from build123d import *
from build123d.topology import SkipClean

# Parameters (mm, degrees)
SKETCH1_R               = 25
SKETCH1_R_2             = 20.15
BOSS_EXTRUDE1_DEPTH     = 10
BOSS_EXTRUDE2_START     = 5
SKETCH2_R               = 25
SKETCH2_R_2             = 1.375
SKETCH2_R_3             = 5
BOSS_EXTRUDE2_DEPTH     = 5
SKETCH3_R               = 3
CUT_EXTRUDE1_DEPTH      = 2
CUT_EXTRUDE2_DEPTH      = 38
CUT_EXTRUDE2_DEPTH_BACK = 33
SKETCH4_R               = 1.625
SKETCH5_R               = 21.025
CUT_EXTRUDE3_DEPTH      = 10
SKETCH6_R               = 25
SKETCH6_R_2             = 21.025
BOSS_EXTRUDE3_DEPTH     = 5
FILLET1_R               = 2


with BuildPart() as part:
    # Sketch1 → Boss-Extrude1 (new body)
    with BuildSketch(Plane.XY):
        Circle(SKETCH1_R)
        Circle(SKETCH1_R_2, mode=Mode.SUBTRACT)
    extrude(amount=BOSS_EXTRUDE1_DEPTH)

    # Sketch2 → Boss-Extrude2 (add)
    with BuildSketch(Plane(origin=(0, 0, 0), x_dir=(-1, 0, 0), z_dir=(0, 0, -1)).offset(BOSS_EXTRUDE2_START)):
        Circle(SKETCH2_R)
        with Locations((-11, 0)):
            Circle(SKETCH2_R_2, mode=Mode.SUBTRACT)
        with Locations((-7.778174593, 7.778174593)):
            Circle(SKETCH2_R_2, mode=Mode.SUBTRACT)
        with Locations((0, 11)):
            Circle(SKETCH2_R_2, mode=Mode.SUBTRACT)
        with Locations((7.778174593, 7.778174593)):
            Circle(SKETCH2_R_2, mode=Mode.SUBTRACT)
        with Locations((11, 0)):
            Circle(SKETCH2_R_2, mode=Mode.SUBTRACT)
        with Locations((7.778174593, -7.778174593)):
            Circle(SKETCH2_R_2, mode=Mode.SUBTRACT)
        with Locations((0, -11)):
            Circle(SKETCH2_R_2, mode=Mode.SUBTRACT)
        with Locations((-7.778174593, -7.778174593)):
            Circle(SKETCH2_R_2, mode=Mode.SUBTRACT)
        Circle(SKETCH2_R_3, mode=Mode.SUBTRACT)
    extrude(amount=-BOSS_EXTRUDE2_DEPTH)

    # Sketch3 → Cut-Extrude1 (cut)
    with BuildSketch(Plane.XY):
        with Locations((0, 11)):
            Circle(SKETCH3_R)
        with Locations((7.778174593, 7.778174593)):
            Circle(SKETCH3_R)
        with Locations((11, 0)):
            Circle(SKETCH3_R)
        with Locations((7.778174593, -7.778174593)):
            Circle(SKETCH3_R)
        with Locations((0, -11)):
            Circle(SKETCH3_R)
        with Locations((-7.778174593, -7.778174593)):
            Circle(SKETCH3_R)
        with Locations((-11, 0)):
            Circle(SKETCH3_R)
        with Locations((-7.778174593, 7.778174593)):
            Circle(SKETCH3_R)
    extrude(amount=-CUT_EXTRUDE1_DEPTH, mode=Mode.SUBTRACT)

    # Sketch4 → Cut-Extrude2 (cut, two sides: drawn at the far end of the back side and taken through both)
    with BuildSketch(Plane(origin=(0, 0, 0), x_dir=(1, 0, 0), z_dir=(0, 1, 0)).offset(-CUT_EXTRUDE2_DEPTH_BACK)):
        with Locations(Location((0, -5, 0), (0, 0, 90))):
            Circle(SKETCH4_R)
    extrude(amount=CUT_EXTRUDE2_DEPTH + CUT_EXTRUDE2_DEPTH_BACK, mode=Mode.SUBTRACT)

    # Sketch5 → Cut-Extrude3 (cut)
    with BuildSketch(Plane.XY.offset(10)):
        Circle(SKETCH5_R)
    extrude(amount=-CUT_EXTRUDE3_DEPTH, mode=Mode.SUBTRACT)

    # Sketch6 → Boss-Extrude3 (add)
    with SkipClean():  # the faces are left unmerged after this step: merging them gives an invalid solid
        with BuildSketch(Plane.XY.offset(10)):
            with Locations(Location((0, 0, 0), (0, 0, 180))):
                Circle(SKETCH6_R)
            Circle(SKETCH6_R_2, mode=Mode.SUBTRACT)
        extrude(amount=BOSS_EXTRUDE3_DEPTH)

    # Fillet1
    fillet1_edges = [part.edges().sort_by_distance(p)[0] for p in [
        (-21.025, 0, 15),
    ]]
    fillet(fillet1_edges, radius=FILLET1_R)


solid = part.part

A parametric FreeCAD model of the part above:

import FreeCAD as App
import Part
import Sketcher
from FreeCAD import Vector


def edges_at(feature, points):
    """Names of the edges that pass closest to the given points."""
    edges = feature.Shape.Edges
    near = lambda p: min(range(len(edges)), key=lambda i: edges[i].distToShape(Part.Vertex(*p))[0])
    return sorted({f"Edge{near(p) + 1}" for p in points})

doc = App.newDocument("Part")
body = doc.addObject("PartDesign::Body", "Body")

# Sketch on XY plane
sketch1 = doc.addObject("Sketcher::SketchObject", "Sketch")
body.addObject(sketch1)
sketch1.AttachmentSupport = (doc.XY_Plane, [""])
sketch1.MapMode = "FlatFace"
sketch1.addGeometry([
    Part.Circle(Vector(0, 0, 0), Vector(0, 0, 1), 25),
    Part.Circle(Vector(0, 0, 0), Vector(0, 0, 1), 20),
], False)
sketch1.addConstraint([
    Sketcher.Constraint("Coincident", 0, 3, -1, 1),
    Sketcher.Constraint("Coincident", 1, 3, -1, 1),
    Sketcher.Constraint("Diameter", 0, 50.0),
    Sketcher.Constraint("Diameter", 1, 40.3),
])
pad1 = doc.addObject("PartDesign::Pad", "Pad")
body.addObject(pad1)
pad1.Profile = sketch1
pad1.Length = 10

# Sketch on XY plane
sketch2 = doc.addObject("Sketcher::SketchObject", "Sketch001")
body.addObject(sketch2)
sketch2.AttachmentSupport = (doc.XY_Plane, [""])
sketch2.MapMode = "FlatFace"
sketch2.AttachmentOffset = App.Placement(Vector(0, 0, -5), App.Rotation())
sketch2.addGeometry([
    Part.Circle(Vector(0, 0, 0), Vector(0, 0, 1), 25),  # 0
    Part.Circle(Vector(7.8, -7.8, 0), Vector(0, 0, 1), 1.4),  # 1
    Part.Circle(Vector(0, -11, 0), Vector(0, 0, 1), 1.4),  # 2
    Part.Circle(Vector(-7.8, -7.8, 0), Vector(0, 0, 1), 1.4),  # 3
    Part.Circle(Vector(11, 0, 0), Vector(0, 0, 1), 1.4),  # 4
    Part.Circle(Vector(7.8, 7.8, 0), Vector(0, 0, 1), 1.4),  # 5
    Part.Circle(Vector(0, 0, 0), Vector(0, 0, 1), 5),  # 6
    Part.Circle(Vector(-11, 0, 0), Vector(0, 0, 1), 1.4),  # 7
    Part.Circle(Vector(0, 11, 0), Vector(0, 0, 1), 1.4),  # 8
    Part.Circle(Vector(-7.8, 7.8, 0), Vector(0, 0, 1), 1.4),  # 9
], False)
sketch2.addConstraint([
    Sketcher.Constraint("Coincident", 0, 3, -1, 1),
    Sketcher.Constraint("Coincident", 6, 3, -1, 1),
    Sketcher.Constraint("Equal", 1, 2),
    Sketcher.Constraint("Equal", 2, 3),
    Sketcher.Constraint("Equal", 3, 4),
    Sketcher.Constraint("Equal", 4, 5),
    Sketcher.Constraint("Equal", 5, 7),
    Sketcher.Constraint("Equal", 7, 8),
    Sketcher.Constraint("Equal", 8, 9),
    Sketcher.Constraint("Symmetric", 3, 3, 5, 3, -1, 1),
    Sketcher.Constraint("Symmetric", 4, 3, 7, 3, -1, 1),
    Sketcher.Constraint("Symmetric", 2, 3, 8, 3, -1, 1),
    Sketcher.Constraint("Symmetric", 1, 3, 9, 3, -1, 1),
    Sketcher.Constraint("Symmetric", 1, 3, 3, 3, -2),
    Sketcher.Constraint("PointOnObject", 2, 3, -2),
    Sketcher.Constraint("PointOnObject", 4, 3, -1),
    Sketcher.Constraint("Diameter", 0, 50.0),
    Sketcher.Constraint("Diameter", 6, 10.0),
    Sketcher.Constraint("Diameter", 1, 2.75),
    Sketcher.Constraint("DistanceY", 2, 3, -1, 1, 11.0),
    Sketcher.Constraint("DistanceX", -1, 1, 4, 3, 11.0),
    Sketcher.Constraint("DistanceX", 3, 3, 1, 3, 15.556349),
    Sketcher.Constraint("DistanceY", 1, 3, 5, 3, 15.556349),
])
pad2 = doc.addObject("PartDesign::Pad", "Pad001")
body.addObject(pad2)
pad2.Profile = sketch2
pad2.Length = 5

# Sketch on XY plane
sketch3 = doc.addObject("Sketcher::SketchObject", "Sketch002")
body.addObject(sketch3)
sketch3.AttachmentSupport = (doc.XY_Plane, [""])
sketch3.MapMode = "FlatFace"
sketch3.addGeometry([
    Part.Circle(Vector(0, 11, 0), Vector(0, 0, 1), 3),  # 0
    Part.Circle(Vector(7.8, 7.8, 0), Vector(0, 0, 1), 3),  # 1
    Part.Circle(Vector(11, 0, 0), Vector(0, 0, 1), 3),  # 2
    Part.Circle(Vector(7.8, -7.8, 0), Vector(0, 0, 1), 3),  # 3
    Part.Circle(Vector(0, -11, 0), Vector(0, 0, 1), 3),  # 4
    Part.Circle(Vector(-7.8, -7.8, 0), Vector(0, 0, 1), 3),  # 5
    Part.Circle(Vector(-11, 0, 0), Vector(0, 0, 1), 3),  # 6
    Part.Circle(Vector(-7.8, 7.8, 0), Vector(0, 0, 1), 3),  # 7
], False)
sketch3.addConstraint([
    Sketcher.Constraint("Equal", 0, 1),
    Sketcher.Constraint("Equal", 1, 2),
    Sketcher.Constraint("Equal", 2, 3),
    Sketcher.Constraint("Equal", 3, 4),
    Sketcher.Constraint("Equal", 4, 5),
    Sketcher.Constraint("Equal", 5, 6),
    Sketcher.Constraint("Equal", 6, 7),
    Sketcher.Constraint("Symmetric", 0, 3, 4, 3, -1, 1),
    Sketcher.Constraint("Symmetric", 1, 3, 5, 3, -1, 1),
    Sketcher.Constraint("Symmetric", 2, 3, 6, 3, -1, 1),
    Sketcher.Constraint("Symmetric", 3, 3, 7, 3, -1, 1),
    Sketcher.Constraint("Symmetric", 3, 3, 5, 3, -2),
    Sketcher.Constraint("PointOnObject", 0, 3, -2),
    Sketcher.Constraint("PointOnObject", 2, 3, -1),
    Sketcher.Constraint("Diameter", 0, 6.0),
    Sketcher.Constraint("DistanceY", -1, 1, 0, 3, 11.0),
    Sketcher.Constraint("DistanceX", -1, 1, 2, 3, 11.0),
    Sketcher.Constraint("DistanceY", 3, 3, 1, 3, 15.556349),
    Sketcher.Constraint("DistanceX", 5, 3, 3, 3, 15.556349),
])
pocket1 = doc.addObject("PartDesign::Pocket", "Pocket")
body.addObject(pocket1)
pocket1.Profile = sketch3
pocket1.Length = 2

# Sketch on XZ plane
sketch4 = doc.addObject("Sketcher::SketchObject", "Sketch003")
body.addObject(sketch4)
sketch4.AttachmentSupport = (doc.XZ_Plane, [""])
sketch4.MapMode = "FlatFace"
sketch4.addGeometry(Part.Circle(Vector(0, 5, 0), Vector(0, 0, 1), 1.6), False)
sketch4.addConstraint([
    Sketcher.Constraint("PointOnObject", 0, 3, -2),
    Sketcher.Constraint("Diameter", 0, 3.25),
    Sketcher.Constraint("DistanceY", -1, 1, 0, 3, 5.0),
])
pocket2 = doc.addObject("PartDesign::Pocket", "Pocket001")
body.addObject(pocket2)
pocket2.Profile = sketch4
pocket2.Type = "ThroughAll"
pocket2.Midplane = True

# Sketch on XY plane
sketch5 = doc.addObject("Sketcher::SketchObject", "Sketch004")
body.addObject(sketch5)
sketch5.AttachmentSupport = (doc.XY_Plane, [""])
sketch5.MapMode = "FlatFace"
sketch5.AttachmentOffset = App.Placement(Vector(0, 0, 10), App.Rotation())
sketch5.addGeometry(Part.Circle(Vector(0, 0, 0), Vector(0, 0, 1), 21), False)
sketch5.addConstraint([
    Sketcher.Constraint("Coincident", 0, 3, -1, 1),
    Sketcher.Constraint("Diameter", 0, 42.05),
])
pocket3 = doc.addObject("PartDesign::Pocket", "Pocket002")
body.addObject(pocket3)
pocket3.Profile = sketch5
pocket3.Length = 10

# Sketch on XY plane
sketch6 = doc.addObject("Sketcher::SketchObject", "Sketch005")
body.addObject(sketch6)
sketch6.AttachmentSupport = (doc.XY_Plane, [""])
sketch6.MapMode = "FlatFace"
sketch6.AttachmentOffset = App.Placement(Vector(0, 0, 10), App.Rotation())
sketch6.addGeometry([
    Part.Circle(Vector(0, 0, 0), Vector(0, 0, 1), 25),
    Part.Circle(Vector(0, 0, 0), Vector(0, 0, 1), 21),
], False)
sketch6.addConstraint([
    Sketcher.Constraint("Coincident", 0, 3, -1, 1),
    Sketcher.Constraint("Coincident", 1, 3, -1, 1),
    Sketcher.Constraint("Diameter", 0, 50.0),
    Sketcher.Constraint("Diameter", 1, 42.05),
])
pad3 = doc.addObject("PartDesign::Pad", "Pad002")
body.addObject(pad3)
pad3.Profile = sketch6
pad3.Length = 5
doc.recompute()

fillet = doc.addObject("PartDesign::Fillet", "Fillet")
body.addObject(fillet)
fillet.Base = (pad3, edges_at(pad3, [(-21.025, 0, 15)]))
fillet.Radius = 2

doc.recompute()
